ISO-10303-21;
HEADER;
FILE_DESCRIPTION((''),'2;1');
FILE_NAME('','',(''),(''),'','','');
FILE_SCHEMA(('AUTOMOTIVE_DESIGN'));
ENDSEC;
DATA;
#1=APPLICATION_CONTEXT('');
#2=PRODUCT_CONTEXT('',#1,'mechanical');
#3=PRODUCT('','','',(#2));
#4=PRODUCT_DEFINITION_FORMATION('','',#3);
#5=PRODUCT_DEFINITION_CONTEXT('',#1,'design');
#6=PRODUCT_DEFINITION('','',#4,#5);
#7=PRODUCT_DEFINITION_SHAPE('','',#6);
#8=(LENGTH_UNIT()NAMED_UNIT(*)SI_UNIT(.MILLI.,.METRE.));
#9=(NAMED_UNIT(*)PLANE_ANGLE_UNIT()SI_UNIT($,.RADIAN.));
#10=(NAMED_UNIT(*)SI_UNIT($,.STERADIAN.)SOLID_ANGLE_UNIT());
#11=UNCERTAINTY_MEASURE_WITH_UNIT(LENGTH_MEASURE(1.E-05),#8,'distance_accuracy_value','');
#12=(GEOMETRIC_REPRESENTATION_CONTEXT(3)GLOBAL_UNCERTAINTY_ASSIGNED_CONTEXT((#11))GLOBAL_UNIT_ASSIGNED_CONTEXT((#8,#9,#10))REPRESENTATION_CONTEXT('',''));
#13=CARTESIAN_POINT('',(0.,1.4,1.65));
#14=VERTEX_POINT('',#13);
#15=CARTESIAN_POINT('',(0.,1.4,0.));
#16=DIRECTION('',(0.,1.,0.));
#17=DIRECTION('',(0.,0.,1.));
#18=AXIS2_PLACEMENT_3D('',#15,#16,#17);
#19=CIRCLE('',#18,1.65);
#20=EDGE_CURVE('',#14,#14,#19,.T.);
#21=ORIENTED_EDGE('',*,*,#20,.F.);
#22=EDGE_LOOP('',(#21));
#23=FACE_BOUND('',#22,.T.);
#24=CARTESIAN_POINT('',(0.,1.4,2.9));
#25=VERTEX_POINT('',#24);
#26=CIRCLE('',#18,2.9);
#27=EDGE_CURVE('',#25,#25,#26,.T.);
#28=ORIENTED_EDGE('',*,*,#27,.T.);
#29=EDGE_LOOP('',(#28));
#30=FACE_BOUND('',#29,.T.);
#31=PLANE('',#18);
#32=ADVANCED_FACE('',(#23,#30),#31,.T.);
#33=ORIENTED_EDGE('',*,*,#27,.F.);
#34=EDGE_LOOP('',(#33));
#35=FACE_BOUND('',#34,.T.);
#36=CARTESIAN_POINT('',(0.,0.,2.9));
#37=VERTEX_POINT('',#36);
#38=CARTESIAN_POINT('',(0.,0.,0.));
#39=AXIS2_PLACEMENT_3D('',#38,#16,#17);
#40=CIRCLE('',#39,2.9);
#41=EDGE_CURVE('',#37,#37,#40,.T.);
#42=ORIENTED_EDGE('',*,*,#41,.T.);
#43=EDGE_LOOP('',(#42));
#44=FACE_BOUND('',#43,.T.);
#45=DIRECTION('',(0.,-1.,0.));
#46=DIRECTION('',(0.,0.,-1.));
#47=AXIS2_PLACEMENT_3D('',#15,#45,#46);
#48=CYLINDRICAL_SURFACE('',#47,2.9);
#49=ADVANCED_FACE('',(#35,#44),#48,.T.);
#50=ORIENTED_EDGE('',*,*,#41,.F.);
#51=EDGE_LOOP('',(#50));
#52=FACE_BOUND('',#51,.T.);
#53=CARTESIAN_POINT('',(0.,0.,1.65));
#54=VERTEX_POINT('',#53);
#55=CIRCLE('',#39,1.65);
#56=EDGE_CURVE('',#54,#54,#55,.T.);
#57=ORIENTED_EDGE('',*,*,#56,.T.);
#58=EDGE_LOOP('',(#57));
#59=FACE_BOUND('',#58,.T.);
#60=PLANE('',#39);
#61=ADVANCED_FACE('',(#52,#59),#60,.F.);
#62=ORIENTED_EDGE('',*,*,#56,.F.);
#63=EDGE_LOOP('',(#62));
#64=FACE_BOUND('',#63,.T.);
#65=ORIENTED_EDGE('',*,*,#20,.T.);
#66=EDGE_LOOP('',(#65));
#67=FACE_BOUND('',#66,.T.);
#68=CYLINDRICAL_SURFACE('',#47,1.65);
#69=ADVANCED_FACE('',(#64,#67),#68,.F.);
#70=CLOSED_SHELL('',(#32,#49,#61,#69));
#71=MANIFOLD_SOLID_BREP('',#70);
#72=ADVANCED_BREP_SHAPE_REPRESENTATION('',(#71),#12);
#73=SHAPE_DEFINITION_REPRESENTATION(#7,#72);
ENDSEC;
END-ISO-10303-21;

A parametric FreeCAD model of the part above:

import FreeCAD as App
import Part
import Sketcher
from FreeCAD import Vector
Q = App.Units.Quantity

doc = App.newDocument("Part")
body = doc.addObject("PartDesign::Body", "Body")

# Sketch on XZ plane
sketch1 = body.newObject("Sketcher::SketchObject", "Sketch")
sketch1.AttachmentSupport = (doc.getObject("XZ_Plane"), [""])
sketch1.MapMode = "FlatFace"
sketch1.addGeometry(Part.Circle(Vector(0, 0, 0), Vector(0, 0, 1), 2.9), False)
sketch1.addGeometry(Part.Circle(Vector(0, 0, 0), Vector(0, 0, 1), 1.6), False)
sketch1.addConstraint(Sketcher.Constraint("Coincident", 0, 3, -1, 1))
sketch1.addConstraint(Sketcher.Constraint("Coincident", 1, 3, -1, 1))
sketch1.addConstraint(Sketcher.Constraint("Diameter", 0, Q("5.8 mm")))
sketch1.addConstraint(Sketcher.Constraint("Diameter", 1, Q("3.3 mm")))
pad1 = body.newObject("PartDesign::Pad", "Pad")
pad1.Profile = sketch1
pad1.Length = 1.4
pad1.Reversed = True

doc.recompute()
